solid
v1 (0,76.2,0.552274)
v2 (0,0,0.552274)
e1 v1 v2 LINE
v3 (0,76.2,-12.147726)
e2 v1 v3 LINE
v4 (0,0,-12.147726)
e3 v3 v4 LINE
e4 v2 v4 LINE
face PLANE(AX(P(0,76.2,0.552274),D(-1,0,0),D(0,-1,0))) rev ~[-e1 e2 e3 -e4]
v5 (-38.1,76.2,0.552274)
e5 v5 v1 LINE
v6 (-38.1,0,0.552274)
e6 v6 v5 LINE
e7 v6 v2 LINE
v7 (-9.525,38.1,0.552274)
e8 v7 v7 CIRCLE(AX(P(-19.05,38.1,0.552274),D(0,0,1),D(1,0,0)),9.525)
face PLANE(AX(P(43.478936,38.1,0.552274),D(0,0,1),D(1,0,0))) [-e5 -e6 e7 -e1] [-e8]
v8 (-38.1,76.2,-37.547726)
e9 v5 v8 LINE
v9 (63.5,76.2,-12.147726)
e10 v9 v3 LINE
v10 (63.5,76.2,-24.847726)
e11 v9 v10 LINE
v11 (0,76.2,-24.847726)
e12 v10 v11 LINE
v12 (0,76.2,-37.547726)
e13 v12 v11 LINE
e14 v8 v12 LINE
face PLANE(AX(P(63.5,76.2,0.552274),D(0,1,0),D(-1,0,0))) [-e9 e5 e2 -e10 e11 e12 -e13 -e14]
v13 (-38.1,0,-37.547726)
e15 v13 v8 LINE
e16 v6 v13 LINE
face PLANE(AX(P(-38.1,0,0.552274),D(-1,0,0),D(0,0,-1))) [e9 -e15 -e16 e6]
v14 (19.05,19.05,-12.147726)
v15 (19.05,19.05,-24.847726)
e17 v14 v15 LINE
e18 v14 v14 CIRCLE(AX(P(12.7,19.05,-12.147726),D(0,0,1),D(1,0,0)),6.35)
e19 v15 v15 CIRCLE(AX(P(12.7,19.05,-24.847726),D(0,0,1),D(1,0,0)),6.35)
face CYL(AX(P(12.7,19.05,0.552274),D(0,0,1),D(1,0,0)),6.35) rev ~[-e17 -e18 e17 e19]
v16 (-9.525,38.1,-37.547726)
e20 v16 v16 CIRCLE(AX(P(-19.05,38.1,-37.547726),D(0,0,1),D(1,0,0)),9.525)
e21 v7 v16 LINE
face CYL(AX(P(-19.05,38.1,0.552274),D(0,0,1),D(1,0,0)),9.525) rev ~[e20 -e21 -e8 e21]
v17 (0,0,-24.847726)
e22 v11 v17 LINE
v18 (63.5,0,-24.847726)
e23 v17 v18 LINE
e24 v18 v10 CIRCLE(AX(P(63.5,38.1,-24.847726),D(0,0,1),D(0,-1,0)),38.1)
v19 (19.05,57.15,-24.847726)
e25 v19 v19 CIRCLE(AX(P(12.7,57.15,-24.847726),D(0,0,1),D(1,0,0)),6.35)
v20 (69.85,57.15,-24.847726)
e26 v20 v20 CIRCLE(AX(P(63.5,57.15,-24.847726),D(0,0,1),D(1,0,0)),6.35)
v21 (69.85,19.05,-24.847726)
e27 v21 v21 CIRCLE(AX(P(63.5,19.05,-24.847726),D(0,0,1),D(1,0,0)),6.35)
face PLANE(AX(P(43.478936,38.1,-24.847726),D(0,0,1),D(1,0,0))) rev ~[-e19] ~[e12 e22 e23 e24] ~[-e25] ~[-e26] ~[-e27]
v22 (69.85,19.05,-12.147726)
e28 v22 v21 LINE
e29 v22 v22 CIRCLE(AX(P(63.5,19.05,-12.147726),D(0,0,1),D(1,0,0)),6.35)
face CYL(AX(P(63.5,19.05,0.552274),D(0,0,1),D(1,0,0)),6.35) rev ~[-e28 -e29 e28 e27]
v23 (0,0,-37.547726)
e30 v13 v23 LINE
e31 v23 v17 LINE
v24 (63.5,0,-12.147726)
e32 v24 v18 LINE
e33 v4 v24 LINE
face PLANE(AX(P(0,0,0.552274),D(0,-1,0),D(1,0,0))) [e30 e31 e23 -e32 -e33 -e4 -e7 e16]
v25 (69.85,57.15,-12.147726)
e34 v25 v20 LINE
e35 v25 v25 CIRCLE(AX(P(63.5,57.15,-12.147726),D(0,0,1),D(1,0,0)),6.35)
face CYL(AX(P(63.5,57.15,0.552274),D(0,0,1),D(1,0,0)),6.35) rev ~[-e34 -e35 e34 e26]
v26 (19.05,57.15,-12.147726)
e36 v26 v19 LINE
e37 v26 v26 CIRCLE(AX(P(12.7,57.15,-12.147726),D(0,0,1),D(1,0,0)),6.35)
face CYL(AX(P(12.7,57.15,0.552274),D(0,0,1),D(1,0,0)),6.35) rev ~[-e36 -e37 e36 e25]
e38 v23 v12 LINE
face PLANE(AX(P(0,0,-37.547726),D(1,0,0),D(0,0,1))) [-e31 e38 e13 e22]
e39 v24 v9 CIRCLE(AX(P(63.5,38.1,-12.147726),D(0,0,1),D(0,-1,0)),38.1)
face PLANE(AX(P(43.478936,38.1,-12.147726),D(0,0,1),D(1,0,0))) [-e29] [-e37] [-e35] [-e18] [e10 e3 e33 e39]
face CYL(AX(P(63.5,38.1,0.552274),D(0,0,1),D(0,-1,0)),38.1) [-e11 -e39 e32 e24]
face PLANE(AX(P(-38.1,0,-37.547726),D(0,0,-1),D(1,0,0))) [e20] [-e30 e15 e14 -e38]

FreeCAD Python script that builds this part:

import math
import FreeCAD as App
import Part
import Sketcher
from FreeCAD import Vector
Q = App.Units.Quantity

doc = App.newDocument("Part")
body = doc.addObject("PartDesign::Body", "Body")

sketch1 = body.newObject("Sketcher::SketchObject", "Sketch")
sketch1.AttachmentSupport = (doc.getObject("XZ_Plane"), [""])
sketch1.MapMode = "FlatFace"
sketch1.addGeometry([
    Part.LineSegment(Vector(0, 1, 0), Vector(-38, 1, 0)),
    Part.LineSegment(Vector(-38, 1, 0), Vector(-38, -38, 0)),
    Part.LineSegment(Vector(-38, -38, 0), Vector(0, -38, 0)),
    Part.LineSegment(Vector(0, -38, 0), Vector(0, 1, 0)),
], False)
sketch1.addConstraint([
    Sketcher.Constraint("Coincident", 0, 2, 1, 1),
    Sketcher.Constraint("Coincident", 1, 2, 2, 1),
    Sketcher.Constraint("Coincident", 2, 2, 3, 1),
    Sketcher.Constraint("Coincident", 3, 2, 0, 1),
    Sketcher.Constraint("Horizontal", 0),
    Sketcher.Constraint("Vertical", 1),
    Sketcher.Constraint("Horizontal", 2),
    Sketcher.Constraint("Vertical", 3),
    Sketcher.Constraint("PointOnObject", 2, 2, -2),
    Sketcher.Constraint("Equal", 2, 1),
    Sketcher.Constraint("DistanceX", 0, 2, 0, 1, Q("1.5 in")),
    Sketcher.Constraint("DistanceY", -1, 1, 0, 2, 0.552274),
])
pad1 = body.newObject("PartDesign::Pad", "Pad")
pad1.Profile = sketch1
pad1.Length = Q("3 in")
pad1.Reversed = True

sketch2 = body.newObject("Sketcher::SketchObject", "Sketch001")
sketch2.AttachmentSupport = (doc.getObject("XY_Plane"), [""])
sketch2.MapMode = "FlatFace"
sketch2.AttachmentOffset = App.Placement(Vector(0, 0, 0.552274), App.Rotation())
sketch2.addGeometry(Part.Circle(Vector(-19, 38, 0), Vector(0, 0, 1), 10), False)
sketch2.addConstraint([
    Sketcher.Constraint("Diameter", 0, Q("0.75 in")),
    Sketcher.Constraint("DistanceY", -1, 1, 0, 3, Q("1.5 in")),
    Sketcher.Constraint("DistanceX", 0, 3, -1, 1, Q("0.75 in")),
])
pocket1 = body.newObject("PartDesign::Pocket", "Pocket")
pocket1.Profile = sketch2
pocket1.Type = "ThroughAll"

sketch3 = body.newObject("Sketcher::SketchObject", "Sketch002")
sketch3.AttachmentSupport = (doc.getObject("XY_Plane"), [""])
sketch3.MapMode = "FlatFace"
sketch3.AttachmentOffset = App.Placement(Vector(0, 0, 0.552274), App.Rotation())
sketch3.addGeometry([
    Part.LineSegment(Vector(0, 76, 0), Vector(0, 0, 0)),
    Part.LineSegment(Vector(0, 0, 0), Vector(64, 0, 0)),
    Part.ArcOfCircle(Part.Circle(Vector(64, 38, 0), Vector(0, 0, 1), 38), math.radians(-90), math.radians(90)),
    Part.LineSegment(Vector(64, 76, 0), Vector(0, 76, 0)),
    Part.Circle(Vector(13, 19, 0), Vector(0, 0, 1), 6),
    Part.Circle(Vector(64, 19, 0), Vector(0, 0, 1), 6),
    Part.Circle(Vector(13, 57, 0), Vector(0, 0, 1), 6),
    Part.Circle(Vector(64, 57, 0), Vector(0, 0, 1), 6),
], False)
sketch3.addConstraint([
    Sketcher.Constraint("Coincident", 0, 2, 1, 1),
    Sketcher.Constraint("Tangent", 1, 2, 2, 1),
    Sketcher.Constraint("Tangent", 2, 2, 3, 1),
    Sketcher.Constraint("Coincident", 3, 2, 0, 1),
    Sketcher.Constraint("Vertical", 0),
    Sketcher.Constraint("Horizontal", 1),
    Sketcher.Constraint("Horizontal", 3),
    Sketcher.Constraint("Coincident", 0, 2, -1, 1),
    Sketcher.Constraint("Equal", 4, 5),
    Sketcher.Constraint("Equal", 5, 6),
    Sketcher.Constraint("Equal", 6, 7),
    Sketcher.Constraint("Horizontal", 4, 3, 5, 3),
    Sketcher.Constraint("Horizontal", 6, 3, 7, 3),
    Sketcher.Constraint("Vertical", 2, 3, 5, 3),
    Sketcher.Constraint("Vertical", 4, 3, 6, 3),
    Sketcher.Constraint("Vertical", 5, 3, 7, 3),
    Sketcher.Constraint("Diameter", 4, Q("0.5 in")),
    Sketcher.Constraint("Radius", 2, Q("1.5 in")),
    Sketcher.Constraint("DistanceX", 1, 1, 1, 2, Q("2.5 in")),
    Sketcher.Constraint("DistanceX", 4, 3, 2, 3, Q("2 in")),
    Sketcher.Constraint("DistanceY", 4, 3, 6, 3, Q("1.5 in")),
    Sketcher.Constraint("DistanceY", -1, 1, 4, 3, Q("0.75 in")),
])
pad2 = body.newObject("PartDesign::Pad", "Pad001")
pad2.Profile = sketch3
pad2.Length = Q("1 in")
pad2.Reversed = True

sketch4 = body.newObject("Sketcher::SketchObject", "Sketch003")
sketch4.AttachmentSupport = (doc.getObject("XY_Plane"), [""])
sketch4.MapMode = "FlatFace"
sketch4.AttachmentOffset = App.Placement(Vector(0, 0, 0.552274), App.Rotation())
sketch4.addGeometry([
    Part.LineSegment(Vector(0, 76, 0), Vector(0, 0, 0)),
    Part.LineSegment(Vector(0, 0, 0), Vector(64, 0, 0)),
    Part.ArcOfCircle(Part.Circle(Vector(64, 38, 0), Vector(0, 0, 1), 38), math.radians(-90), math.radians(90)),
    Part.LineSegment(Vector(64, 76, 0), Vector(0, 76, 0)),
    Part.Circle(Vector(13, 19, 0), Vector(0, 0, 1), 6),
    Part.Circle(Vector(64, 19, 0), Vector(0, 0, 1), 6),
    Part.Circle(Vector(13, 57, 0), Vector(0, 0, 1), 6),
    Part.Circle(Vector(64, 57, 0), Vector(0, 0, 1), 6),
], False)
sketch4.addConstraint([
    Sketcher.Constraint("Coincident", 0, 2, 1, 1),
    Sketcher.Constraint("Tangent", 1, 2, 2, 1),
    Sketcher.Constraint("Tangent", 2, 2, 3, 1),
    Sketcher.Constraint("Coincident", 3, 2, 0, 1),
    Sketcher.Constraint("Vertical", 0),
    Sketcher.Constraint("Horizontal", 1),
    Sketcher.Constraint("Horizontal", 3),
    Sketcher.Constraint("Coincident", 0, 2, -1, 1),
    Sketcher.Constraint("Equal", 4, 5),
    Sketcher.Constraint("Equal", 5, 6),
    Sketcher.Constraint("Equal", 6, 7),
    Sketcher.Constraint("Horizontal", 4, 3, 5, 3),
    Sketcher.Constraint("Horizontal", 6, 3, 7, 3),
    Sketcher.Constraint("Vertical", 2, 3, 5, 3),
    Sketcher.Constraint("Vertical", 4, 3, 6, 3),
    Sketcher.Constraint("Vertical", 5, 3, 7, 3),
    Sketcher.Constraint("Diameter", 4, Q("0.5 in")),
    Sketcher.Constraint("Radius", 2, Q("1.5 in")),
    Sketcher.Constraint("DistanceX", 1, 1, 1, 2, Q("2.5 in")),
    Sketcher.Constraint("DistanceX", 4, 3, 2, 3, Q("2 in")),
    Sketcher.Constraint("DistanceY", 4, 3, 6, 3, Q("1.5 in")),
    Sketcher.Constraint("DistanceY", -1, 1, 4, 3, Q("0.75 in")),
])
pocket2 = body.newObject("PartDesign::Pocket", "Pocket001")
pocket2.Profile = sketch4
pocket2.Length = Q("0.5 in")

doc.recompute()
